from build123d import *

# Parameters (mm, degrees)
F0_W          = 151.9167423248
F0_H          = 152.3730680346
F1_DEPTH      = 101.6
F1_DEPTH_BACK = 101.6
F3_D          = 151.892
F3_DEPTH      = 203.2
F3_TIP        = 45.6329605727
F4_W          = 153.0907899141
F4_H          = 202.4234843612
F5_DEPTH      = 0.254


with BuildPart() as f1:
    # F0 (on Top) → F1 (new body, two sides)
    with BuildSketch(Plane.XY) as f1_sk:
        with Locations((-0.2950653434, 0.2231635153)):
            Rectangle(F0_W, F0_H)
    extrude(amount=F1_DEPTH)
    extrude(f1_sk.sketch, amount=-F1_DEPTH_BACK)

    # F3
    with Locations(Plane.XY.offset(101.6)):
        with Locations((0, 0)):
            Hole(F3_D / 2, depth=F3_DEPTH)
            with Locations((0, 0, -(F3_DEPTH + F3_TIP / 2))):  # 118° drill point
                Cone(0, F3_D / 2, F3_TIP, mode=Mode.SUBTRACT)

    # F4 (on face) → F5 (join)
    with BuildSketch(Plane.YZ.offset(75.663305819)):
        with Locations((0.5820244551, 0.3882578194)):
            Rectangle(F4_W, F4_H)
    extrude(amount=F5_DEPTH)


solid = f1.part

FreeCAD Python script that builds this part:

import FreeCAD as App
import Part
import Sketcher
from FreeCAD import Vector
Q = App.Units.Quantity

doc = App.newDocument("Part")
body = doc.addObject("PartDesign::Body", "Body")

# Sketch on XY plane
sketch1 = doc.addObject("Sketcher::SketchObject", "Sketch")
body.addObject(sketch1)
sketch1.AttachmentSupport = (doc.XY_Plane, [""])
sketch1.MapMode = "FlatFace"
sketch1.addGeometry([
    Part.LineSegment(Vector(-76, 76, 0), Vector(-76, -76, 0)),
    Part.LineSegment(Vector(-76, -76, 0), Vector(76, -76, 0)),
    Part.LineSegment(Vector(76, -76, 0), Vector(76, 76, 0)),
    Part.LineSegment(Vector(76, 76, 0), Vector(-76, 76, 0)),
], False)
sketch1.addConstraint([
    Sketcher.Constraint("Coincident", 0, 2, 1, 1),
    Sketcher.Constraint("Coincident", 1, 2, 2, 1),
    Sketcher.Constraint("Coincident", 2, 2, 3, 1),
    Sketcher.Constraint("Coincident", 3, 2, 0, 1),
    Sketcher.Constraint("Vertical", 0),
    Sketcher.Constraint("Horizontal", 1),
    Sketcher.Constraint("Vertical", 2),
    Sketcher.Constraint("Horizontal", 3),
    Sketcher.Constraint("DistanceY", 0, 2, 0, 1, 152.373068),
    Sketcher.Constraint("DistanceX", 1, 1, 1, 2, 151.916742),
    Sketcher.Constraint("DistanceY", 0, 2, -1, 1, 75.963371),
    Sketcher.Constraint("DistanceX", 0, 2, -1, 1, 76.253437),
])
pad1 = doc.addObject("PartDesign::Pad", "Pad")
body.addObject(pad1)
pad1.Profile = sketch1
pad1.Type = "TwoLengths"
pad1.Length = Q("4 in")
pad1.Length2 = Q("4 in")

# Sketch on XY plane
sketch2 = doc.addObject("Sketcher::SketchObject", "Sketch001")
body.addObject(sketch2)
sketch2.AttachmentSupport = (doc.XY_Plane, [""])
sketch2.MapMode = "FlatFace"
sketch2.AttachmentOffset = App.Placement(Vector(0, 0, 4 * 25.4), App.Rotation())
sketch2.addGeometry(Part.Circle(Vector(0, 0, 0), Vector(0, 0, 1), 76), False)
sketch2.addConstraint([
    Sketcher.Constraint("Coincident", 0, 3, -1, 1),
    Sketcher.Constraint("Diameter", 0, Q("5.98 in")),
])
doc.recompute()
hole = doc.addObject("PartDesign::Hole", "Hole")
body.addObject(hole)
hole.Profile = sketch2
hole.ThreadType = "None"
hole.Diameter = Q("5.98 in")
hole.DepthType = "Dimension"
hole.Depth = Q("8 in")
hole.DrillPoint = "Angled"
hole.DrillPointAngle = 118

# Sketch on YZ plane
sketch3 = doc.addObject("Sketcher::SketchObject", "Sketch002")
body.addObject(sketch3)
sketch3.AttachmentSupport = (doc.YZ_Plane, [""])
sketch3.MapMode = "FlatFace"
sketch3.AttachmentOffset = App.Placement(Vector(0, 0, 75.663306), App.Rotation())
sketch3.addGeometry([
    Part.LineSegment(Vector(-76, 102, 0), Vector(-76, -101, 0)),
    Part.LineSegment(Vector(-76, -101, 0), Vector(77, -101, 0)),
    Part.LineSegment(Vector(77, -101, 0), Vector(77, 102, 0)),
    Part.LineSegment(Vector(77, 102, 0), Vector(-76, 102, 0)),
], False)
sketch3.addConstraint([
    Sketcher.Constraint("Coincident", 0, 2, 1, 1),
    Sketcher.Constraint("Coincident", 1, 2, 2, 1),
    Sketcher.Constraint("Coincident", 2, 2, 3, 1),
    Sketcher.Constraint("Coincident", 3, 2, 0, 1),
    Sketcher.Constraint("Vertical", 0),
    Sketcher.Constraint("Horizontal", 1),
    Sketcher.Constraint("Vertical", 2),
    Sketcher.Constraint("Horizontal", 3),
    Sketcher.Constraint("DistanceY", -1, 1, 2, 2, Q("4 in")),
    Sketcher.Constraint("DistanceX", 1, 1, 1, 2, 153.09079),
    Sketcher.Constraint("DistanceY", 0, 2, 0, 1, 202.423484),
    Sketcher.Constraint("DistanceX", 0, 2, -1, 1, 75.963371),
])
pad2 = doc.addObject("PartDesign::Pad", "Pad001")
body.addObject(pad2)
pad2.Profile = sketch3
pad2.Length = Q("0.01 in")

doc.recompute()
